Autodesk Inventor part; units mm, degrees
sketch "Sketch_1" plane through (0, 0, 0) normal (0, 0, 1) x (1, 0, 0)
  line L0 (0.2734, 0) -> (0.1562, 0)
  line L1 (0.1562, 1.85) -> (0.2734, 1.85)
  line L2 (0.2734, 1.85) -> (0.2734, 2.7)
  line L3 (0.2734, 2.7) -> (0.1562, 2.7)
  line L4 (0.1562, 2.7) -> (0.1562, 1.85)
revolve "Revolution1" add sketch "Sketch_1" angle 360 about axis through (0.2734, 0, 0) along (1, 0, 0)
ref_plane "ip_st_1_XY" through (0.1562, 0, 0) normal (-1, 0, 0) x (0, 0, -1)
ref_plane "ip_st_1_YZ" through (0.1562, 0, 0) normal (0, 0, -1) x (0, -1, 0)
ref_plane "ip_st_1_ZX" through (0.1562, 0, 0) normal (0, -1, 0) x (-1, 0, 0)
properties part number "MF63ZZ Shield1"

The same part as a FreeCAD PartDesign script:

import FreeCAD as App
import Part
import Sketcher


def add_polygon(sketch, points):
    """Adds a closed chain of lines whose ends are joined by coincident constraints."""
    first, n = sketch.GeometryCount, len(points)
    for a, b in zip(points, points[1:] + points[:1]):
        sketch.addGeometry(Part.LineSegment(App.Vector(*a, 0), App.Vector(*b, 0)), False)
    for i in range(n):
        sketch.addConstraint(Sketcher.Constraint("Coincident", first + i, 2, first + (i + 1) % n, 1))

doc = App.newDocument("Part")
body = doc.addObject("PartDesign::Body", "Body")

# Sketch on XY plane
sketch1 = body.newObject("Sketcher::SketchObject", "Sketch")
sketch1.AttachmentSupport = (doc.getObject("XY_Plane"), [""])
sketch1.MapMode = "FlatFace"
add_polygon(sketch1, [(0.16, 2.7), (0.16, 1.85), (0.27, 1.85), (0.27, 2.7)])  # lines 0-3
sketch1.addConstraint(Sketcher.Constraint("Vertical", 0))
sketch1.addConstraint(Sketcher.Constraint("Horizontal", 1))
sketch1.addConstraint(Sketcher.Constraint("Vertical", 2))
sketch1.addConstraint(Sketcher.Constraint("Horizontal", 3))
sketch1.addConstraint(Sketcher.Constraint("DistanceY", 0, 2, 0, 1, 0.85))
sketch1.addConstraint(Sketcher.Constraint("DistanceY", -1, 1, 2, 2, 2.7))
sketch1.addConstraint(Sketcher.Constraint("DistanceX", 1, 1, 1, 2, 0.1172))
sketch1.addConstraint(Sketcher.Constraint("DistanceX", -1, 1, 0, 2, 0.1562))
revolution = body.newObject("PartDesign::Revolution", "Revolution")
revolution.Profile = sketch1
revolution.ReferenceAxis = (sketch1, ["H_Axis"])
revolution.Angle = 360

doc.recompute()
